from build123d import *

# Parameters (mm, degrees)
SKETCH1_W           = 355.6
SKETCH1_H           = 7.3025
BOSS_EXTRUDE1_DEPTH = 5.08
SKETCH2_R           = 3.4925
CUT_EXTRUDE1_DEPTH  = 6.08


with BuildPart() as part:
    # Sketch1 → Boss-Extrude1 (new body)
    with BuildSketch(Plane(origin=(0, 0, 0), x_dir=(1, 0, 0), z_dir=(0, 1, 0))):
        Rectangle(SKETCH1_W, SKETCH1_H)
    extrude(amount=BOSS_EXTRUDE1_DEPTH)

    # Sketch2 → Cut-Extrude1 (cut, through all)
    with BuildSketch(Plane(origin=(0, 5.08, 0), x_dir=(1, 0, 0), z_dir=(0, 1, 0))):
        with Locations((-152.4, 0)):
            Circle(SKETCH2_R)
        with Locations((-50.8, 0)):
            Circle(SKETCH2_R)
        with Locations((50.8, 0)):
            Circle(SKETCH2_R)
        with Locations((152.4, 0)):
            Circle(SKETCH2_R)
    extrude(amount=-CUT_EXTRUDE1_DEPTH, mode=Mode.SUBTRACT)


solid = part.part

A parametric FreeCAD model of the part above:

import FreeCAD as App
import Part
import Sketcher
from FreeCAD import Vector
Q = App.Units.Quantity


def add_polygon(sketch, points):
    """Adds a closed chain of lines whose ends are joined by coincident constraints."""
    first, n = sketch.GeometryCount, len(points)
    for a, b in zip(points, points[1:] + points[:1]):
        sketch.addGeometry(Part.LineSegment(App.Vector(*a, 0), App.Vector(*b, 0)), False)
    for i in range(n):
        sketch.addConstraint(Sketcher.Constraint("Coincident", first + i, 2, first + (i + 1) % n, 1))

doc = App.newDocument("Part")
body = doc.addObject("PartDesign::Body", "Body")

# Sketch on XZ plane
sketch1 = body.newObject("Sketcher::SketchObject", "Sketch")
sketch1.AttachmentSupport = (doc.getObject("XZ_Plane"), [""])
sketch1.MapMode = "FlatFace"
add_polygon(sketch1, [(-178, -4), (-178, 4), (178, 4), (178, -4)])  # lines 0-3
sketch1.addConstraint(Sketcher.Constraint("Vertical", 0))
sketch1.addConstraint(Sketcher.Constraint("Horizontal", 1))
sketch1.addConstraint(Sketcher.Constraint("Vertical", 2))
sketch1.addConstraint(Sketcher.Constraint("Horizontal", 3))
sketch1.addConstraint(Sketcher.Constraint("Symmetric", 0, 2, 2, 2, -1, 1))
sketch1.addConstraint(Sketcher.Constraint("DistanceX", 1, 1, 1, 2, Q("14 in")))
sketch1.addConstraint(Sketcher.Constraint("DistanceY", 0, 1, 0, 2, Q("0.2875 in")))
pad1 = body.newObject("PartDesign::Pad", "Pad")
pad1.Profile = sketch1
pad1.Length = Q("0.2 in")
pad1.Reversed = True

# Sketch on XZ plane
sketch2 = body.newObject("Sketcher::SketchObject", "Sketch001")
sketch2.AttachmentSupport = (doc.getObject("XZ_Plane"), [""])
sketch2.MapMode = "FlatFace"
sketch2.AttachmentOffset = App.Placement(Vector(0, 0, -0.2 * 25.4), App.Rotation())
sketch2.addGeometry(Part.Circle(Vector(-152.4, 0, 0), Vector(0, 0, 1), 3.5), False)
sketch2.addGeometry(Part.Circle(Vector(-50.8, 0, 0), Vector(0, 0, 1), 3.5), False)
sketch2.addGeometry(Part.Circle(Vector(50.8, 0, 0), Vector(0, 0, 1), 3.5), False)
sketch2.addGeometry(Part.Circle(Vector(152.4, 0, 0), Vector(0, 0, 1), 3.5), False)
sketch2.addConstraint(Sketcher.Constraint("Equal", 0, 1))
sketch2.addConstraint(Sketcher.Constraint("Equal", 1, 2))
sketch2.addConstraint(Sketcher.Constraint("Equal", 2, 3))
sketch2.addConstraint(Sketcher.Constraint("Symmetric", 1, 3, 2, 3, -1, 1))
sketch2.addConstraint(Sketcher.Constraint("Symmetric", 0, 3, 3, 3, -1, 1))
sketch2.addConstraint(Sketcher.Constraint("PointOnObject", 0, 3, -1))
sketch2.addConstraint(Sketcher.Constraint("PointOnObject", 1, 3, -1))
sketch2.addConstraint(Sketcher.Constraint("Diameter", 0, Q("0.275 in")))
sketch2.addConstraint(Sketcher.Constraint("DistanceX", 0, 3, -1, 1, Q("6 in")))
sketch2.addConstraint(Sketcher.Constraint("DistanceX", 1, 3, -1, 1, Q("2 in")))
pocket1 = body.newObject("PartDesign::Pocket", "Pocket")
pocket1.Profile = sketch2
pocket1.Type = "ThroughAll"
pocket1.Reversed = True

doc.recompute()
